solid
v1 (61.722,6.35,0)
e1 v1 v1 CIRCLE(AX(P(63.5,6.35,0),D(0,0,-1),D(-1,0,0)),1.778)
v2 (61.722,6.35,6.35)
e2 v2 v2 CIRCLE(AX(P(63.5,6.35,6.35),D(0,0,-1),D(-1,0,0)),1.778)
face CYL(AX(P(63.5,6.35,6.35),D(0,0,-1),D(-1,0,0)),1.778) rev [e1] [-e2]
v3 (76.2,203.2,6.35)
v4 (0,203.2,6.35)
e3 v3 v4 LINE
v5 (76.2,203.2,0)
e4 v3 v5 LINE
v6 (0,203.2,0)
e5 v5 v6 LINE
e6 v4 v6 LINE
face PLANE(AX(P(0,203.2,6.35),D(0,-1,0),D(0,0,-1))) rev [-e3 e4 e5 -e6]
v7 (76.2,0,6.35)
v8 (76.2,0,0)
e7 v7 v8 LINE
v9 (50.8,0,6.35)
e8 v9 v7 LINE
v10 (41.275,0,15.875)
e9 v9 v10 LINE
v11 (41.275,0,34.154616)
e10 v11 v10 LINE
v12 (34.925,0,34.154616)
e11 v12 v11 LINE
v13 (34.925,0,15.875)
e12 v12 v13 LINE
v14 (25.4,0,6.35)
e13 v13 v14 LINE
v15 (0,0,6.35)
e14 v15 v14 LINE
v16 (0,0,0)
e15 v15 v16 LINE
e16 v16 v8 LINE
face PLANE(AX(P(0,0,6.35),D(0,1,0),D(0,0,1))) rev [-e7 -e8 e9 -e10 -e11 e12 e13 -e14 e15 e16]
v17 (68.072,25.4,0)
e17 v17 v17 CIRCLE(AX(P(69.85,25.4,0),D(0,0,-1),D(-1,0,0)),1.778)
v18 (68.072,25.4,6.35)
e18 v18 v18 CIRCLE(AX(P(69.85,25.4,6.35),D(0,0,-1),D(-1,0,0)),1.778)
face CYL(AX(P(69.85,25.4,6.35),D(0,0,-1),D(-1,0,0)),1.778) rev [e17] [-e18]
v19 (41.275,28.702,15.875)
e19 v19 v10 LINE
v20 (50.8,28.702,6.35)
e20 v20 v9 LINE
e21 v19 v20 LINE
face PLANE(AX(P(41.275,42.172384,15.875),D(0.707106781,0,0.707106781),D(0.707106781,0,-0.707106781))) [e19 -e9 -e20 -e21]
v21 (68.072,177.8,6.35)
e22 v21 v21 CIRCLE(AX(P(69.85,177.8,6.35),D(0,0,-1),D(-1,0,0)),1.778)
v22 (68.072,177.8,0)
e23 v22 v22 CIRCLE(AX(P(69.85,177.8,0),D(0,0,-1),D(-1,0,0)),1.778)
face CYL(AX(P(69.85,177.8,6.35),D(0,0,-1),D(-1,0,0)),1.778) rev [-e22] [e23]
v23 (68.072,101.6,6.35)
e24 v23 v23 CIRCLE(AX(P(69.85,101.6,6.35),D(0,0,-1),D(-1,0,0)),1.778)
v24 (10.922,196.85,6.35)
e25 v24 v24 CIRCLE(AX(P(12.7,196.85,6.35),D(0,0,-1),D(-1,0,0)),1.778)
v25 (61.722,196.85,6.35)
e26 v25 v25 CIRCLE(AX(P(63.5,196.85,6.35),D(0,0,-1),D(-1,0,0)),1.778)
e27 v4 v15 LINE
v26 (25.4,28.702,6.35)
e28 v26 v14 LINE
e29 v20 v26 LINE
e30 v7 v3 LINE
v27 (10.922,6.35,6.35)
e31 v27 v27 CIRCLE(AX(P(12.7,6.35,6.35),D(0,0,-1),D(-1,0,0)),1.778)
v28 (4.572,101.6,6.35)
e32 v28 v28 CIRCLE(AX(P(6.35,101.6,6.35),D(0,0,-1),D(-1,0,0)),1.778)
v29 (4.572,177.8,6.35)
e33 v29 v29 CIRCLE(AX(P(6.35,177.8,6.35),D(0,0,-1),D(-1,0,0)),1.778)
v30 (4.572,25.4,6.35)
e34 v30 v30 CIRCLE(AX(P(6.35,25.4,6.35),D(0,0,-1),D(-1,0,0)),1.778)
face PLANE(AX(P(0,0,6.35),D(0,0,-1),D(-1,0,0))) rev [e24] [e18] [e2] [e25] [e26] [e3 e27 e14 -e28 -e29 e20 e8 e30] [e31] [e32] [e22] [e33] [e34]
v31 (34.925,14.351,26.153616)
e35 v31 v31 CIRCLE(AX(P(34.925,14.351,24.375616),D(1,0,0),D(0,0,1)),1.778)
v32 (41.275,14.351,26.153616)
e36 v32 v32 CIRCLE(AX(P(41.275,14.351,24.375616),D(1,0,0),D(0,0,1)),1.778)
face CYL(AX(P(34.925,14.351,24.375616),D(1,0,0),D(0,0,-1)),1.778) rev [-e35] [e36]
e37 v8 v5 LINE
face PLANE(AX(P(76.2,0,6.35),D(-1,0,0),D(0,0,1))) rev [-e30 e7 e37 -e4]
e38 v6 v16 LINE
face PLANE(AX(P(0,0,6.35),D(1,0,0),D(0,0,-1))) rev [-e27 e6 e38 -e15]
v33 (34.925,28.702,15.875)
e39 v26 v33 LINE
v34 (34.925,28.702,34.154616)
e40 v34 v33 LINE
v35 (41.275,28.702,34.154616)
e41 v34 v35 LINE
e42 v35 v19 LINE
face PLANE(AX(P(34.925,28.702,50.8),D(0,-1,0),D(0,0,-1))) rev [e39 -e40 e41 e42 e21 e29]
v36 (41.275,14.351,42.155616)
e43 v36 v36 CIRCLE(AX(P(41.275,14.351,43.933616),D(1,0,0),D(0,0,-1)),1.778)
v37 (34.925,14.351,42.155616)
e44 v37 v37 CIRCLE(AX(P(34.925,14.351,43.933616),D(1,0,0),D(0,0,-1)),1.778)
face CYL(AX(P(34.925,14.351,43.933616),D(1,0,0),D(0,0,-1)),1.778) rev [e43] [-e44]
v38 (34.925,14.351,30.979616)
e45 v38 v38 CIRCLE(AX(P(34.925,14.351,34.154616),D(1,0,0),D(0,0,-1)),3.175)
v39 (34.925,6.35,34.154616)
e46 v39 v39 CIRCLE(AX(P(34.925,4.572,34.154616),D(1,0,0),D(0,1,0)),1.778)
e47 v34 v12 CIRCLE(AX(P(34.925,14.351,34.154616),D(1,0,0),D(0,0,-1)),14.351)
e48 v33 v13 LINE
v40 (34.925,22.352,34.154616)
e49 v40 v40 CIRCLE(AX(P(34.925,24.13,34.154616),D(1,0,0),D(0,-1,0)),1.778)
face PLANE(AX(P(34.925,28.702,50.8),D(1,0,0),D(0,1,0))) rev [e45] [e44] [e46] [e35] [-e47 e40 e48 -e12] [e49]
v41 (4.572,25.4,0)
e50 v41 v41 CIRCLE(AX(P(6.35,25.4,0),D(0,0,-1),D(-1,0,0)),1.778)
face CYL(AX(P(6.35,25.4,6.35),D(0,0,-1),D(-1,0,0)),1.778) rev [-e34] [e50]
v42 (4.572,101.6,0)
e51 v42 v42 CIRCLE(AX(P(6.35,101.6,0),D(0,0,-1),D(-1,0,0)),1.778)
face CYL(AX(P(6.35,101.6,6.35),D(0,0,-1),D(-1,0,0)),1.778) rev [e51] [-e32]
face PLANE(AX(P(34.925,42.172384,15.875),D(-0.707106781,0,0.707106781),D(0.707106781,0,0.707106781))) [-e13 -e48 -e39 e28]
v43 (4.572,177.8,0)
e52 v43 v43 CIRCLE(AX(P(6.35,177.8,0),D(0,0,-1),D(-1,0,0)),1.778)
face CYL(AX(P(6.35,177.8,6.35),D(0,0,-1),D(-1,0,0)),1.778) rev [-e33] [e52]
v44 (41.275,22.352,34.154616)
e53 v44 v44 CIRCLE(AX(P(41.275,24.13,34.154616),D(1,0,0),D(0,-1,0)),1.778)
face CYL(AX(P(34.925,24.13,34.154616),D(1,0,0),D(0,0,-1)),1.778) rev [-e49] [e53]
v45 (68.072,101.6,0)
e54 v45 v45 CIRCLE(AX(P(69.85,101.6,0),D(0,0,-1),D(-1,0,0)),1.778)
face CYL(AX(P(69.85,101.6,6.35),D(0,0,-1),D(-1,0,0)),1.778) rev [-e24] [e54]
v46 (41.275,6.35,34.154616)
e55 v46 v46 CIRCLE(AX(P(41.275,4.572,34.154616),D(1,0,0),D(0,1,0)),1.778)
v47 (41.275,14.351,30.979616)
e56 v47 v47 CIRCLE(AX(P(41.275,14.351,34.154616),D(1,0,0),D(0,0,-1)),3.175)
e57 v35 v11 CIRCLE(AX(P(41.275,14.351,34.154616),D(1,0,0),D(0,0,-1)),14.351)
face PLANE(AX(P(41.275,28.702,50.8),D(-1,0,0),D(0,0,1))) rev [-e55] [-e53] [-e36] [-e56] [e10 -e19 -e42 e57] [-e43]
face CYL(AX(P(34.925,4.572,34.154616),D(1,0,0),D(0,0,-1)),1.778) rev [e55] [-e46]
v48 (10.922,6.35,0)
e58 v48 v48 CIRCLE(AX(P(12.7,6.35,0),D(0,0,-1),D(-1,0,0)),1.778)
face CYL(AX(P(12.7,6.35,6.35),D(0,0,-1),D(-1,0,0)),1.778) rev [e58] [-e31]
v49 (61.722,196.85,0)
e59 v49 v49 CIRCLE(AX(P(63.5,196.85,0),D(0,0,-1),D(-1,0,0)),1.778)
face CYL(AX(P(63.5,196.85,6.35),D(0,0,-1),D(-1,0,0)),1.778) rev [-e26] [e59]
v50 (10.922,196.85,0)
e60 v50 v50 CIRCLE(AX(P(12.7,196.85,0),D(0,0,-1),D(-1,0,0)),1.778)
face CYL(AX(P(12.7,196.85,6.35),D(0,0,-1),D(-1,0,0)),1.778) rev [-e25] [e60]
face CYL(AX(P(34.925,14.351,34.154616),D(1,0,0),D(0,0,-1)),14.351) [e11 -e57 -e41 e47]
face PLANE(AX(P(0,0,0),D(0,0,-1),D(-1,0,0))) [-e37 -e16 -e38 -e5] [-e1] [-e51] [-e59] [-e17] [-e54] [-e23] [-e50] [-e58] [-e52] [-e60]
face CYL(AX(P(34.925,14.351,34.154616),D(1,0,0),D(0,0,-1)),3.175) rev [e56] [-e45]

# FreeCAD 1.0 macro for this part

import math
import FreeCAD as App
import Part
import Sketcher
from FreeCAD import Vector
Q = App.Units.Quantity

doc = App.newDocument("Part")
body = doc.addObject("PartDesign::Body", "Body")

# Sketch on XY plane
sketch1 = doc.addObject("Sketcher::SketchObject", "Sketch")
body.addObject(sketch1)
sketch1.AttachmentSupport = (doc.XY_Plane, [""])
sketch1.MapMode = "FlatFace"
sketch1.addGeometry([
    Part.LineSegment(Vector(0, 203, 0), Vector(0, 0, 0)),
    Part.LineSegment(Vector(0, 0, 0), Vector(76, 0, 0)),
    Part.LineSegment(Vector(76, 0, 0), Vector(76, 203, 0)),
    Part.LineSegment(Vector(76, 203, 0), Vector(0, 203, 0)),
], False)
sketch1.addConstraint([
    Sketcher.Constraint("Coincident", 0, 2, 1, 1),
    Sketcher.Constraint("Coincident", 1, 2, 2, 1),
    Sketcher.Constraint("Coincident", 2, 2, 3, 1),
    Sketcher.Constraint("Coincident", 3, 2, 0, 1),
    Sketcher.Constraint("Vertical", 0),
    Sketcher.Constraint("Horizontal", 1),
    Sketcher.Constraint("Vertical", 2),
    Sketcher.Constraint("Horizontal", 3),
    Sketcher.Constraint("Coincident", 0, 2, -1, 1),
    Sketcher.Constraint("DistanceX", 1, 1, 1, 2, Q("3 in")),
    Sketcher.Constraint("DistanceY", 0, 2, 0, 1, Q("8 in")),
])
pad1 = doc.addObject("PartDesign::Pad", "Pad")
body.addObject(pad1)
pad1.Profile = sketch1
pad1.Length = Q("0.25 in")

# Sketch on XY plane
sketch2 = doc.addObject("Sketcher::SketchObject", "Sketch001")
body.addObject(sketch2)
sketch2.AttachmentSupport = (doc.XY_Plane, [""])
sketch2.MapMode = "FlatFace"
sketch2.AttachmentOffset = App.Placement(Vector(0, 0, 0.25 * 25.4), App.Rotation())
sketch2.addGeometry([
    Part.LineSegment(Vector(35, 29, 0), Vector(35, 0, 0)),
    Part.LineSegment(Vector(35, 0, 0), Vector(41, 0, 0)),
    Part.LineSegment(Vector(41, 0, 0), Vector(41, 29, 0)),
    Part.LineSegment(Vector(41, 29, 0), Vector(35, 29, 0)),
], False)
sketch2.addConstraint([
    Sketcher.Constraint("Coincident", 0, 2, 1, 1),
    Sketcher.Constraint("Coincident", 1, 2, 2, 1),
    Sketcher.Constraint("Coincident", 2, 2, 3, 1),
    Sketcher.Constraint("Coincident", 3, 2, 0, 1),
    Sketcher.Constraint("Vertical", 0),
    Sketcher.Constraint("Horizontal", 1),
    Sketcher.Constraint("Vertical", 2),
    Sketcher.Constraint("Horizontal", 3),
    Sketcher.Constraint("PointOnObject", 0, 2, -1),
    Sketcher.Constraint("DistanceX", 1, 1, 1, 2, Q("0.25 in")),
    Sketcher.Constraint("DistanceY", 0, 2, 0, 1, Q("1.13 in")),
    Sketcher.Constraint("DistanceX", -1, 1, 0, 2, Q("1.375 in")),
])
pad2 = doc.addObject("PartDesign::Pad", "Pad001")
body.addObject(pad2)
pad2.Profile = sketch2
pad2.Length = Q("1.75 in")

# Sketch on YZ plane
sketch3 = doc.addObject("Sketcher::SketchObject", "Sketch002")
body.addObject(sketch3)
sketch3.AttachmentSupport = (doc.YZ_Plane, [""])
sketch3.MapMode = "FlatFace"
sketch3.AttachmentOffset = App.Placement(Vector(0, 0, 1.625 * 25.4), App.Rotation())
sketch3.addGeometry(Part.Circle(Vector(14.4, 34.2, 0), Vector(0, 0, 1), 3.2), False)
sketch3.addConstraint([
    Sketcher.Constraint("Diameter", 0, Q("0.25 in")),
    Sketcher.Constraint("DistanceX", -1, 1, 0, 3, Q("0.565 in")),
    Sketcher.Constraint("DistanceY", -1, 1, 0, 3, 34.154616),
])
pocket1 = doc.addObject("PartDesign::Pocket", "Pocket")
body.addObject(pocket1)
pocket1.Profile = sketch3
pocket1.Length = Q("0.25 in")

# Sketch on YZ plane
sketch4 = doc.addObject("Sketcher::SketchObject", "Sketch003")
body.addObject(sketch4)
sketch4.AttachmentSupport = (doc.YZ_Plane, [""])
sketch4.MapMode = "FlatFace"
sketch4.AttachmentOffset = App.Placement(Vector(0, 0, 1.625 * 25.4), App.Rotation())
sketch4.addGeometry(Part.Circle(Vector(14.4, 43.9, 0), Vector(0, 0, 1), 1.8), False)
sketch4.addConstraint([
    Sketcher.Constraint("Diameter", 0, Q("0.14 in")),
    Sketcher.Constraint("DistanceX", -1, 1, 0, 3, Q("0.565 in")),
    Sketcher.Constraint("DistanceY", -1, 1, 0, 3, 43.933616),
])
pocket2 = doc.addObject("PartDesign::Pocket", "Pocket001")
body.addObject(pocket2)
pocket2.Profile = sketch4
pocket2.Length = Q("0.25 in")
doc.recompute()

datumline = doc.addObject("PartDesign::Line", "DatumLine")
body.addObject(datumline)
datumline.Placement = App.Placement(Vector(0, 14.351, 34.154616), App.Rotation(Vector(0, 0, 1), Vector(1, 0, 0)))
polarpattern = doc.addObject("PartDesign::PolarPattern", "PolarPattern")
body.addObject(polarpattern)
polarpattern.Originals = [pocket2]
polarpattern.Axis = (datumline, [""])
polarpattern.Angle = 360
polarpattern.Occurrences = 4
body.Tip = polarpattern

# Sketch on YZ plane
sketch5 = doc.addObject("Sketcher::SketchObject", "Sketch004")
body.addObject(sketch5)
sketch5.AttachmentSupport = (doc.YZ_Plane, [""])
sketch5.MapMode = "FlatFace"
sketch5.AttachmentOffset = App.Placement(Vector(0, 0, 1.625 * 25.4), App.Rotation())
sketch5.addGeometry([
    Part.ArcOfCircle(Part.Circle(Vector(14, 34, 0), Vector(0, 0, 1), 14), math.radians(0), math.radians(180)),
    Part.LineSegment(Vector(29, 34, 0), Vector(29, 51, 0)),
    Part.LineSegment(Vector(29, 51, 0), Vector(0, 51, 0)),
    Part.LineSegment(Vector(0, 51, 0), Vector(0, 34, 0)),
], False)
sketch5.addConstraint([
    Sketcher.Constraint("Tangent", 0, 1, 1, 1),
    Sketcher.Constraint("Coincident", 1, 2, 2, 1),
    Sketcher.Constraint("Coincident", 2, 2, 3, 1),
    Sketcher.Constraint("Tangent", 3, 2, 0, 2),
    Sketcher.Constraint("Vertical", 1),
    Sketcher.Constraint("Horizontal", 2),
    Sketcher.Constraint("Vertical", 3),
    Sketcher.Constraint("PointOnObject", 2, 2, -2),
    Sketcher.Constraint("DistanceY", -1, 1, 1, 2, Q("2 in")),
    Sketcher.Constraint("Radius", 0, Q("0.565 in")),
    Sketcher.Constraint("DistanceY", 1, 1, 1, 2, 16.645384),
])
pocket3 = doc.addObject("PartDesign::Pocket", "Pocket002")
body.addObject(pocket3)
pocket3.Profile = sketch5
pocket3.Length = Q("0.25 in")

# Sketch on XY plane
sketch6 = doc.addObject("Sketcher::SketchObject", "Sketch005")
body.addObject(sketch6)
sketch6.AttachmentSupport = (doc.XY_Plane, [""])
sketch6.MapMode = "FlatFace"
sketch6.addGeometry([
    Part.Circle(Vector(63.5, 6.3, 0), Vector(0, 0, 1), 1.8),  # 0
    Part.Circle(Vector(12.7, 6.3, 0), Vector(0, 0, 1), 1.8),  # 1
    Part.Circle(Vector(6.3, 177.8, 0), Vector(0, 0, 1), 1.8),  # 2
    Part.Circle(Vector(6.3, 25.4, 0), Vector(0, 0, 1), 1.8),  # 3
    Part.Circle(Vector(69.8, 25.4, 0), Vector(0, 0, 1), 1.8),  # 4
    Part.Circle(Vector(69.8, 177.8, 0), Vector(0, 0, 1), 1.8),  # 5
    Part.Circle(Vector(63.5, 196.8, 0), Vector(0, 0, 1), 1.8),  # 6
    Part.Circle(Vector(12.7, 196.8, 0), Vector(0, 0, 1), 1.8),  # 7
    Part.Circle(Vector(6.3, 101.6, 0), Vector(0, 0, 1), 1.8),  # 8
    Part.Circle(Vector(69.8, 101.6, 0), Vector(0, 0, 1), 1.8),  # 9
], False)
sketch6.addConstraint([
    Sketcher.Constraint("Equal", 0, 1),
    Sketcher.Constraint("Equal", 1, 2),
    Sketcher.Constraint("Equal", 2, 3),
    Sketcher.Constraint("Equal", 3, 4),
    Sketcher.Constraint("Equal", 4, 5),
    Sketcher.Constraint("Equal", 5, 6),
    Sketcher.Constraint("Equal", 6, 7),
    Sketcher.Constraint("Equal", 7, 8),
    Sketcher.Constraint("Equal", 8, 9),
    Sketcher.Constraint("Horizontal", 0, 3, 1, 3),
    Sketcher.Constraint("Horizontal", 3, 3, 4, 3),
    Sketcher.Constraint("Horizontal", 2, 3, 5, 3),
    Sketcher.Constraint("Horizontal", 6, 3, 7, 3),
    Sketcher.Constraint("Horizontal", 8, 3, 9, 3),
    Sketcher.Constraint("Vertical", 2, 3, 3, 3),
    Sketcher.Constraint("Vertical", 4, 3, 5, 3),
    Sketcher.Constraint("Vertical", 0, 3, 6, 3),
    Sketcher.Constraint("Vertical", 1, 3, 7, 3),
    Sketcher.Constraint("Vertical", 3, 3, 8, 3),
    Sketcher.Constraint("Vertical", 5, 3, 9, 3),
    Sketcher.Constraint("Diameter", 0, Q("0.14 in")),
    Sketcher.Constraint("DistanceY", -1, 1, 2, 3, Q("7 in")),
    Sketcher.Constraint("DistanceY", -1, 1, 3, 3, Q("1 in")),
    Sketcher.Constraint("DistanceY", -1, 1, 8, 3, Q("4 in")),
    Sketcher.Constraint("DistanceX", 1, 3, 0, 3, Q("2 in")),
    Sketcher.Constraint("DistanceX", -1, 1, 0, 3, Q("2.5 in")),
    Sketcher.Constraint("DistanceX", 3, 3, 4, 3, Q("2.5 in")),
    Sketcher.Constraint("DistanceY", 0, 3, 6, 3, Q("7.5 in")),
    Sketcher.Constraint("DistanceY", -1, 1, 0, 3, Q("0.25 in")),
    Sketcher.Constraint("DistanceX", -1, 1, 2, 3, Q("0.25 in")),
])
pocket4 = doc.addObject("PartDesign::Pocket", "Pocket003")
body.addObject(pocket4)
pocket4.Profile = sketch6
pocket4.Length = Q("0.25 in")
pocket4.Reversed = True

# Sketch on XZ plane
sketch7 = doc.addObject("Sketcher::SketchObject", "Sketch006")
body.addObject(sketch7)
sketch7.AttachmentSupport = (doc.XZ_Plane, [""])
sketch7.MapMode = "FlatFace"
sketch7.addGeometry([
    Part.LineSegment(Vector(41, 16, 0), Vector(41, 6, 0)),  # 0
    Part.LineSegment(Vector(41, 6, 0), Vector(51, 6, 0)),  # 1
    Part.LineSegment(Vector(51, 6, 0), Vector(41, 16, 0)),  # 2
    Part.LineSegment(Vector(35, 6, 0), Vector(35, 16, 0)),  # 3
    Part.LineSegment(Vector(35, 16, 0), Vector(25, 6, 0)),  # 4
    Part.LineSegment(Vector(25, 6, 0), Vector(35, 6, 0)),  # 5
], False)
sketch7.addConstraint([
    Sketcher.Constraint("Coincident", 0, 2, 1, 1),
    Sketcher.Constraint("Coincident", 1, 2, 2, 1),
    Sketcher.Constraint("Coincident", 2, 2, 0, 1),
    Sketcher.Constraint("Coincident", 3, 2, 4, 1),
    Sketcher.Constraint("Coincident", 4, 2, 5, 1),
    Sketcher.Constraint("Coincident", 5, 2, 3, 1),
    Sketcher.Constraint("Vertical", 0),
    Sketcher.Constraint("Horizontal", 1),
    Sketcher.Constraint("Vertical", 3),
    Sketcher.Constraint("Horizontal", 5),
    Sketcher.Constraint("Perpendicular", 2, 4),
    Sketcher.Constraint("Horizontal", 2, 2, 3, 2),
    Sketcher.Constraint("Horizontal", 1, 2, 4, 2),
    Sketcher.Constraint("Equal", 1, 5),
    Sketcher.Constraint("DistanceX", -1, 1, 1, 2, Q("2 in")),
    Sketcher.Constraint("DistanceX", -1, 1, 4, 2, Q("1 in")),
    Sketcher.Constraint("DistanceX", 1, 1, 1, 2, Q("0.375 in")),
    Sketcher.Constraint("DistanceY", -1, 1, 0, 2, Q("0.25 in")),
])
pad3 = doc.addObject("PartDesign::Pad", "Pad002")
body.addObject(pad3)
pad3.Profile = sketch7
pad3.Length = Q("1.13 in")
pad3.Reversed = True

doc.recompute()
